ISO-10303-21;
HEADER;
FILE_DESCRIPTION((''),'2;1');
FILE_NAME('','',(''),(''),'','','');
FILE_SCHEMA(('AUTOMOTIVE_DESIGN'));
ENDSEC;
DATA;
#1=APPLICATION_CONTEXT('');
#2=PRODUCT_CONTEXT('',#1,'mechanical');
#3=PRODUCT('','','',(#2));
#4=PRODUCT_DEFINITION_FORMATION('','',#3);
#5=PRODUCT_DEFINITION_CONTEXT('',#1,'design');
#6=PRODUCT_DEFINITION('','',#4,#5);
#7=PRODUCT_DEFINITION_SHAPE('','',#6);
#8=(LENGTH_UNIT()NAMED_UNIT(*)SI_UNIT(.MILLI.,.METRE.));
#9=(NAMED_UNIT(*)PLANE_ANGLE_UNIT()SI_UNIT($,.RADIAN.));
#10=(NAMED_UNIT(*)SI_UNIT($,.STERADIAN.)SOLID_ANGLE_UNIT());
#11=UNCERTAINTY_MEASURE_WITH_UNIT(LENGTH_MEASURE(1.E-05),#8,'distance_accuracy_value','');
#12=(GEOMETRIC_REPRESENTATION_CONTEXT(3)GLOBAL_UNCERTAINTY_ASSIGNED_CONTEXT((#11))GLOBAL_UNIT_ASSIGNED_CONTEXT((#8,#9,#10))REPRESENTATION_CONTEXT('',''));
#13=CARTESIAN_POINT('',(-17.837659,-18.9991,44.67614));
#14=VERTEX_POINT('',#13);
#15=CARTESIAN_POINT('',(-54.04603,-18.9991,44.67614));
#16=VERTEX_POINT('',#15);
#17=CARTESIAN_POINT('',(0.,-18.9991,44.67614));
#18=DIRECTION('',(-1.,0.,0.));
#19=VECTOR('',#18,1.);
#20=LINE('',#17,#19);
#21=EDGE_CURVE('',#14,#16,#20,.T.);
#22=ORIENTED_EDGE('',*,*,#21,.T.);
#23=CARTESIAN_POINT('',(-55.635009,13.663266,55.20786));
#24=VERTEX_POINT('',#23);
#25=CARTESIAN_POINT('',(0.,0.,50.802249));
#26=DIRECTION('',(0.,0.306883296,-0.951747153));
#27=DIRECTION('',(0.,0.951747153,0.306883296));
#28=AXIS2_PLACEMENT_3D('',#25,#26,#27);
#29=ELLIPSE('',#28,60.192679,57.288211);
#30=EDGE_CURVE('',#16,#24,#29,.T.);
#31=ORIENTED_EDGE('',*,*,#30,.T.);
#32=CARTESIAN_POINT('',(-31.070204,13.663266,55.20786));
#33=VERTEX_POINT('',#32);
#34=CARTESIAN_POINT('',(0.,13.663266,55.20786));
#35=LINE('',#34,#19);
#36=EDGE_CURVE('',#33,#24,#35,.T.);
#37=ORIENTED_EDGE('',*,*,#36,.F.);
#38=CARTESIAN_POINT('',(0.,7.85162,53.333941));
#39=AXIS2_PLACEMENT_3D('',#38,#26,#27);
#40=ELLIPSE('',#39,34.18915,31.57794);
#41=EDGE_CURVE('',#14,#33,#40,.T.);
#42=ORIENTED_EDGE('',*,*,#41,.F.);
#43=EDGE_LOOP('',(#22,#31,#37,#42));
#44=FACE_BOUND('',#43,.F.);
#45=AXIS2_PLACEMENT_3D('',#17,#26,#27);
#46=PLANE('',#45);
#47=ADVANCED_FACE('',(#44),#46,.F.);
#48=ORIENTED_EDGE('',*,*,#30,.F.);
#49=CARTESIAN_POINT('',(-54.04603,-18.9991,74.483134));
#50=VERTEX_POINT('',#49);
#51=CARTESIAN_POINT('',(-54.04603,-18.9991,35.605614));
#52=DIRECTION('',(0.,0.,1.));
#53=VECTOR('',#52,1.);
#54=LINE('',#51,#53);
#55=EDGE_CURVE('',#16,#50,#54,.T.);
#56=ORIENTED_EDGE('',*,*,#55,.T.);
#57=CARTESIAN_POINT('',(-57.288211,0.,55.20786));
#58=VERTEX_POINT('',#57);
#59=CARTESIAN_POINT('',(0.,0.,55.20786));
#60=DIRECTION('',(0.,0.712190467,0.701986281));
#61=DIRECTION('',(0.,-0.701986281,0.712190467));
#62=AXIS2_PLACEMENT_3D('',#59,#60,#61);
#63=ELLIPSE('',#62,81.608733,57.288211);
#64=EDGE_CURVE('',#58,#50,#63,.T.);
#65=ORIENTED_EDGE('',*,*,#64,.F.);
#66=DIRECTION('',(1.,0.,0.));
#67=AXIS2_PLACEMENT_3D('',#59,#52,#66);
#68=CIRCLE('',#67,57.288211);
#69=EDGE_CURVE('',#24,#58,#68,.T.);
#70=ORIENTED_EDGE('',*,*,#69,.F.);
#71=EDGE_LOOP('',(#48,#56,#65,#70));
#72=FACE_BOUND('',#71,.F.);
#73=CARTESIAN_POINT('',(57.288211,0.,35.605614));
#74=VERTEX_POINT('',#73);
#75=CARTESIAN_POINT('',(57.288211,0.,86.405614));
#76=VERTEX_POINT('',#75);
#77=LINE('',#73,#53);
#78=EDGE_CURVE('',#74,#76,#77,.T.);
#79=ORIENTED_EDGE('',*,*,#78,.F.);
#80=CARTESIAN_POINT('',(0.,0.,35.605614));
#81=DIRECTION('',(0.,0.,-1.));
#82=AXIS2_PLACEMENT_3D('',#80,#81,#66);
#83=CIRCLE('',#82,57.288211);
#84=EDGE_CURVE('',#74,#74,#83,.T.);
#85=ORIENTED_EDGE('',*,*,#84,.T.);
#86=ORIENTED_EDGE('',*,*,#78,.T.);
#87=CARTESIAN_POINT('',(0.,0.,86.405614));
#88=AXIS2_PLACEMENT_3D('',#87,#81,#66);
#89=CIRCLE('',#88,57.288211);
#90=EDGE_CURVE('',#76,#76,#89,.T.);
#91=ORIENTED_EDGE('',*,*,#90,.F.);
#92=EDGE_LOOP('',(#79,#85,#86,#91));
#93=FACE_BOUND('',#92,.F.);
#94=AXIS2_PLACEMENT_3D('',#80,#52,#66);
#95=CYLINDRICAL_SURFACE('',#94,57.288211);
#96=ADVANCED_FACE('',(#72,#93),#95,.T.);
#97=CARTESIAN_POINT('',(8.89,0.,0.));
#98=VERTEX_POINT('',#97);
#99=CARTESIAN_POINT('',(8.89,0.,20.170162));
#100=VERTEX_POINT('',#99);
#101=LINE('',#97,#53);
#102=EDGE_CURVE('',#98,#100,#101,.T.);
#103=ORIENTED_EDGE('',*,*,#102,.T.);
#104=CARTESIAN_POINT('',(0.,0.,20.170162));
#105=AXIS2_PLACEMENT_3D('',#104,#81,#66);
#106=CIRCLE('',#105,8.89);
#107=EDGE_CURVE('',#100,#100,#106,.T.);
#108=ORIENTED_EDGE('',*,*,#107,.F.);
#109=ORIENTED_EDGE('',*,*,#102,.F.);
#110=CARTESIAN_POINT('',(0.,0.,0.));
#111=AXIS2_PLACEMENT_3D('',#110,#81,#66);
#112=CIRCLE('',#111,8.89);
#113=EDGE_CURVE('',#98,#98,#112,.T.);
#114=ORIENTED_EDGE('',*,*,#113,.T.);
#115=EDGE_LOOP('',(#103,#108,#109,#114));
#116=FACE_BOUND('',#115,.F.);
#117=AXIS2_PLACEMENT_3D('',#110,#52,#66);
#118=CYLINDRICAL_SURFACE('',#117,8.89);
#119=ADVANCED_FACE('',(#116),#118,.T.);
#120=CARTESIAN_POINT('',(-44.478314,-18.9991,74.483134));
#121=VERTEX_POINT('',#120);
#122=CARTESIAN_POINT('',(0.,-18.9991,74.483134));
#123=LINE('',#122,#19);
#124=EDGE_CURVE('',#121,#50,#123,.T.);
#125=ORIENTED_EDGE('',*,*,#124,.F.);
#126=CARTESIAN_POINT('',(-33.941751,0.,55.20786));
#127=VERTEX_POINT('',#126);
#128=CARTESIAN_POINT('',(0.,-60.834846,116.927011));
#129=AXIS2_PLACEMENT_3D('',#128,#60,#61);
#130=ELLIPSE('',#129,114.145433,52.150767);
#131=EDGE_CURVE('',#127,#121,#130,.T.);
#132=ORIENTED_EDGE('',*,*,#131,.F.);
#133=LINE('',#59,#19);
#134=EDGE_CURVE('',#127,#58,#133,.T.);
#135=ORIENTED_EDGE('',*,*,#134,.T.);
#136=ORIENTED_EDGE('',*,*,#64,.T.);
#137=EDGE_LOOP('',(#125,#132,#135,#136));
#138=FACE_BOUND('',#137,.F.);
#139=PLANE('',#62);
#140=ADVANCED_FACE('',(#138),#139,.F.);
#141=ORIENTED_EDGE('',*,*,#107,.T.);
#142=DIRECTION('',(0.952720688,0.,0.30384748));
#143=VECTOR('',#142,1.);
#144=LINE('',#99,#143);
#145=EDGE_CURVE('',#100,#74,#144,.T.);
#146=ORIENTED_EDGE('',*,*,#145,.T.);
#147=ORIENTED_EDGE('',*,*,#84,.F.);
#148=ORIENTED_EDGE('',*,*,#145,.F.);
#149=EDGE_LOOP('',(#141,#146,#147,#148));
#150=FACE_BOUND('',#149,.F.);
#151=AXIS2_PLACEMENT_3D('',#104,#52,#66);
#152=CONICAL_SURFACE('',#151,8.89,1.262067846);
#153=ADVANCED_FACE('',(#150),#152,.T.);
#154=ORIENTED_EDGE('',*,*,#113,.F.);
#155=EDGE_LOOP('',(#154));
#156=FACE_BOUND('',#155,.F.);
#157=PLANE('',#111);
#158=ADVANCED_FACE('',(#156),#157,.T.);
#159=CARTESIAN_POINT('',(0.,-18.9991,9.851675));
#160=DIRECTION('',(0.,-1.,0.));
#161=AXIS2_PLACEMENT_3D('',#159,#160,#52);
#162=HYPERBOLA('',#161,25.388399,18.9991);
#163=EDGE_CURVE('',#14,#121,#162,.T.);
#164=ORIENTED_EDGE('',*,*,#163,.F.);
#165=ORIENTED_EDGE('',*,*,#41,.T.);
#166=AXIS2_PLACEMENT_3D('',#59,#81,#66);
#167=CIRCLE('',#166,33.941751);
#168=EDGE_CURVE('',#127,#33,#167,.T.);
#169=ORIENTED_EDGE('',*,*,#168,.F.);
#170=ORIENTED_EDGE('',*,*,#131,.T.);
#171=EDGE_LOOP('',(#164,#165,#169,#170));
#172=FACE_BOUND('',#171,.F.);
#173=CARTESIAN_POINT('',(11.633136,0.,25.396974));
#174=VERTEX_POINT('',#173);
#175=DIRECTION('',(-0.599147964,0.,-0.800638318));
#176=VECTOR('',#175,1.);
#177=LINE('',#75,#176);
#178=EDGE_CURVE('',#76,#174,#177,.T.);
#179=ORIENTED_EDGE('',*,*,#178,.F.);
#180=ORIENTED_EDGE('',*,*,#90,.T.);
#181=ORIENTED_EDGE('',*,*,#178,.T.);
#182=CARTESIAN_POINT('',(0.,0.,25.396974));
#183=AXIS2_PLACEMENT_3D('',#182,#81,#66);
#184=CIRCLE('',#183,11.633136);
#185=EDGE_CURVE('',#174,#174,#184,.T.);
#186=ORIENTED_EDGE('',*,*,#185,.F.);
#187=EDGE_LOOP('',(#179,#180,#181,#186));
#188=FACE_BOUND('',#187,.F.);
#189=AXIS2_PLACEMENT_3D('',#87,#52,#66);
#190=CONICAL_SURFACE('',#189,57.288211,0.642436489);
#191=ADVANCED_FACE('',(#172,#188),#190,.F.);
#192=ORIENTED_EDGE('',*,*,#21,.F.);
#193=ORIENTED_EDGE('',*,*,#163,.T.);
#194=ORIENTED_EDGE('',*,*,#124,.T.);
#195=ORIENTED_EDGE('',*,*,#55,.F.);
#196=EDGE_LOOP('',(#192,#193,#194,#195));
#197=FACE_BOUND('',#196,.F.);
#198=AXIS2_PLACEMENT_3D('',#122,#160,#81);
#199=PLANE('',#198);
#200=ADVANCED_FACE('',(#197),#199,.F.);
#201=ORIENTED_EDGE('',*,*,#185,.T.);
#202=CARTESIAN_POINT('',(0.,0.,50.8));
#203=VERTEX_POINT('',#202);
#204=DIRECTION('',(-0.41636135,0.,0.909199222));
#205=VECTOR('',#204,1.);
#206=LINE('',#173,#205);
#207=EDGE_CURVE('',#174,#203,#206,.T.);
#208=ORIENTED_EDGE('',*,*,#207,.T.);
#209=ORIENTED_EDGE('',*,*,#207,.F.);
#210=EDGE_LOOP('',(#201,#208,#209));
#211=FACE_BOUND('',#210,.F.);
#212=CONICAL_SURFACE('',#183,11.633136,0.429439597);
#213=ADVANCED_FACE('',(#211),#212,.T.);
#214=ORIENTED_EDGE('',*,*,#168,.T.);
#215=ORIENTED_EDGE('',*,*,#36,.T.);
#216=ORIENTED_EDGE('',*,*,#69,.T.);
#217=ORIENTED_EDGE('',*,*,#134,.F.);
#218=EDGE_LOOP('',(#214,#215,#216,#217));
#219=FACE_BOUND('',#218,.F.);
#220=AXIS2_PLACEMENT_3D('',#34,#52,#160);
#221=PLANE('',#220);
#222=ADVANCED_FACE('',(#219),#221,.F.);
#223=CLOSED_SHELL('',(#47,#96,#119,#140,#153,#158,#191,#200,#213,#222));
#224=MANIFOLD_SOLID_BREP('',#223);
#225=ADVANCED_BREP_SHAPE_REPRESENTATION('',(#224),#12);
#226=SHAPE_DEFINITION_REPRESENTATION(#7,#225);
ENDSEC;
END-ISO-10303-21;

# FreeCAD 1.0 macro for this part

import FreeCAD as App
import Part
import Sketcher
Q = App.Units.Quantity


def add_polygon(sketch, points):
    """Adds a closed chain of lines whose ends are joined by coincident constraints."""
    first, n = sketch.GeometryCount, len(points)
    for a, b in zip(points, points[1:] + points[:1]):
        sketch.addGeometry(Part.LineSegment(App.Vector(*a, 0), App.Vector(*b, 0)), False)
    for i in range(n):
        sketch.addConstraint(Sketcher.Constraint("Coincident", first + i, 2, first + (i + 1) % n, 1))

doc = App.newDocument("Part")
body = doc.addObject("PartDesign::Body", "Body")

# Sketch on XZ plane
sketch1 = doc.addObject("Sketcher::SketchObject", "Sketch")
body.addObject(sketch1)
sketch1.AttachmentSupport = (doc.XZ_Plane, [""])
sketch1.MapMode = "FlatFace"
add_polygon(sketch1, [(11.633136, 25.396974), (0, 50.8), (0, 0), (8.89, 0), (8.89, 20.170162), (57.288211, 35.605614), (57.288211, 86.405614)])  # lines 0-6
sketch1.addConstraint([
    Sketcher.Constraint("Vertical", 1),
    Sketcher.Constraint("Horizontal", 2),
    Sketcher.Constraint("Vertical", 3),
    Sketcher.Constraint("Vertical", 5),
    Sketcher.Constraint("Coincident", 1, 2, -1, 1),
    Sketcher.Constraint("Equal", 1, 5),
    Sketcher.Constraint("DistanceY", 1, 2, 1, 1, Q("2 in")),
    Sketcher.Constraint("Distance", 4, Q("2 in")),
    Sketcher.Constraint("Distance", 6, Q("3 in")),
    Sketcher.Constraint("Distance", 0, Q("1.1 in")),
    Sketcher.Constraint("DistanceX", 2, 1, 2, 2, Q("0.35 in")),
    Sketcher.Constraint("DistanceY", 3, 1, 3, 2, Q("20.170162 mm")),
    Sketcher.Constraint("DistanceX", -1, 1, 4, 2, Q("57.288211 mm")),
])
revolution = doc.addObject("PartDesign::Revolution", "Revolution")
body.addObject(revolution)
revolution.Profile = sketch1
revolution.ReferenceAxis = (sketch1, ["V_Axis"])
revolution.Angle = 360

# Sketch on YZ plane
sketch2 = doc.addObject("Sketcher::SketchObject", "Sketch001")
body.addObject(sketch2)
sketch2.AttachmentSupport = (doc.YZ_Plane, [""])
sketch2.MapMode = "FlatFace"
add_polygon(sketch2, [(0, 55.20786), (-18.9991, 74.483134), (-18.9991, 44.67614), (13.663266, 55.20786)])  # lines 0-3
sketch2.addConstraint([
    Sketcher.Constraint("Vertical", 1),
    Sketcher.Constraint("Horizontal", 3),
    Sketcher.Constraint("PointOnObject", 3, 2, -2),
    Sketcher.Constraint("DistanceX", 0, 2, -1, 1, Q("18.9991 mm")),
    Sketcher.Constraint("DistanceX", 3, 2, 3, 1, Q("13.663266 mm")),
    Sketcher.Constraint("DistanceY", 1, 2, 1, 1, Q("29.806994 mm")),
    Sketcher.Constraint("DistanceY", -1, 1, 1, 2, Q("44.67614 mm")),
    Sketcher.Constraint("DistanceY", -1, 1, 2, 2, Q("55.20786 mm")),
])
pocket1 = doc.addObject("PartDesign::Pocket", "Pocket")
body.addObject(pocket1)
pocket1.Profile = sketch2
pocket1.Length = Q("6.3 in")

doc.recompute()
